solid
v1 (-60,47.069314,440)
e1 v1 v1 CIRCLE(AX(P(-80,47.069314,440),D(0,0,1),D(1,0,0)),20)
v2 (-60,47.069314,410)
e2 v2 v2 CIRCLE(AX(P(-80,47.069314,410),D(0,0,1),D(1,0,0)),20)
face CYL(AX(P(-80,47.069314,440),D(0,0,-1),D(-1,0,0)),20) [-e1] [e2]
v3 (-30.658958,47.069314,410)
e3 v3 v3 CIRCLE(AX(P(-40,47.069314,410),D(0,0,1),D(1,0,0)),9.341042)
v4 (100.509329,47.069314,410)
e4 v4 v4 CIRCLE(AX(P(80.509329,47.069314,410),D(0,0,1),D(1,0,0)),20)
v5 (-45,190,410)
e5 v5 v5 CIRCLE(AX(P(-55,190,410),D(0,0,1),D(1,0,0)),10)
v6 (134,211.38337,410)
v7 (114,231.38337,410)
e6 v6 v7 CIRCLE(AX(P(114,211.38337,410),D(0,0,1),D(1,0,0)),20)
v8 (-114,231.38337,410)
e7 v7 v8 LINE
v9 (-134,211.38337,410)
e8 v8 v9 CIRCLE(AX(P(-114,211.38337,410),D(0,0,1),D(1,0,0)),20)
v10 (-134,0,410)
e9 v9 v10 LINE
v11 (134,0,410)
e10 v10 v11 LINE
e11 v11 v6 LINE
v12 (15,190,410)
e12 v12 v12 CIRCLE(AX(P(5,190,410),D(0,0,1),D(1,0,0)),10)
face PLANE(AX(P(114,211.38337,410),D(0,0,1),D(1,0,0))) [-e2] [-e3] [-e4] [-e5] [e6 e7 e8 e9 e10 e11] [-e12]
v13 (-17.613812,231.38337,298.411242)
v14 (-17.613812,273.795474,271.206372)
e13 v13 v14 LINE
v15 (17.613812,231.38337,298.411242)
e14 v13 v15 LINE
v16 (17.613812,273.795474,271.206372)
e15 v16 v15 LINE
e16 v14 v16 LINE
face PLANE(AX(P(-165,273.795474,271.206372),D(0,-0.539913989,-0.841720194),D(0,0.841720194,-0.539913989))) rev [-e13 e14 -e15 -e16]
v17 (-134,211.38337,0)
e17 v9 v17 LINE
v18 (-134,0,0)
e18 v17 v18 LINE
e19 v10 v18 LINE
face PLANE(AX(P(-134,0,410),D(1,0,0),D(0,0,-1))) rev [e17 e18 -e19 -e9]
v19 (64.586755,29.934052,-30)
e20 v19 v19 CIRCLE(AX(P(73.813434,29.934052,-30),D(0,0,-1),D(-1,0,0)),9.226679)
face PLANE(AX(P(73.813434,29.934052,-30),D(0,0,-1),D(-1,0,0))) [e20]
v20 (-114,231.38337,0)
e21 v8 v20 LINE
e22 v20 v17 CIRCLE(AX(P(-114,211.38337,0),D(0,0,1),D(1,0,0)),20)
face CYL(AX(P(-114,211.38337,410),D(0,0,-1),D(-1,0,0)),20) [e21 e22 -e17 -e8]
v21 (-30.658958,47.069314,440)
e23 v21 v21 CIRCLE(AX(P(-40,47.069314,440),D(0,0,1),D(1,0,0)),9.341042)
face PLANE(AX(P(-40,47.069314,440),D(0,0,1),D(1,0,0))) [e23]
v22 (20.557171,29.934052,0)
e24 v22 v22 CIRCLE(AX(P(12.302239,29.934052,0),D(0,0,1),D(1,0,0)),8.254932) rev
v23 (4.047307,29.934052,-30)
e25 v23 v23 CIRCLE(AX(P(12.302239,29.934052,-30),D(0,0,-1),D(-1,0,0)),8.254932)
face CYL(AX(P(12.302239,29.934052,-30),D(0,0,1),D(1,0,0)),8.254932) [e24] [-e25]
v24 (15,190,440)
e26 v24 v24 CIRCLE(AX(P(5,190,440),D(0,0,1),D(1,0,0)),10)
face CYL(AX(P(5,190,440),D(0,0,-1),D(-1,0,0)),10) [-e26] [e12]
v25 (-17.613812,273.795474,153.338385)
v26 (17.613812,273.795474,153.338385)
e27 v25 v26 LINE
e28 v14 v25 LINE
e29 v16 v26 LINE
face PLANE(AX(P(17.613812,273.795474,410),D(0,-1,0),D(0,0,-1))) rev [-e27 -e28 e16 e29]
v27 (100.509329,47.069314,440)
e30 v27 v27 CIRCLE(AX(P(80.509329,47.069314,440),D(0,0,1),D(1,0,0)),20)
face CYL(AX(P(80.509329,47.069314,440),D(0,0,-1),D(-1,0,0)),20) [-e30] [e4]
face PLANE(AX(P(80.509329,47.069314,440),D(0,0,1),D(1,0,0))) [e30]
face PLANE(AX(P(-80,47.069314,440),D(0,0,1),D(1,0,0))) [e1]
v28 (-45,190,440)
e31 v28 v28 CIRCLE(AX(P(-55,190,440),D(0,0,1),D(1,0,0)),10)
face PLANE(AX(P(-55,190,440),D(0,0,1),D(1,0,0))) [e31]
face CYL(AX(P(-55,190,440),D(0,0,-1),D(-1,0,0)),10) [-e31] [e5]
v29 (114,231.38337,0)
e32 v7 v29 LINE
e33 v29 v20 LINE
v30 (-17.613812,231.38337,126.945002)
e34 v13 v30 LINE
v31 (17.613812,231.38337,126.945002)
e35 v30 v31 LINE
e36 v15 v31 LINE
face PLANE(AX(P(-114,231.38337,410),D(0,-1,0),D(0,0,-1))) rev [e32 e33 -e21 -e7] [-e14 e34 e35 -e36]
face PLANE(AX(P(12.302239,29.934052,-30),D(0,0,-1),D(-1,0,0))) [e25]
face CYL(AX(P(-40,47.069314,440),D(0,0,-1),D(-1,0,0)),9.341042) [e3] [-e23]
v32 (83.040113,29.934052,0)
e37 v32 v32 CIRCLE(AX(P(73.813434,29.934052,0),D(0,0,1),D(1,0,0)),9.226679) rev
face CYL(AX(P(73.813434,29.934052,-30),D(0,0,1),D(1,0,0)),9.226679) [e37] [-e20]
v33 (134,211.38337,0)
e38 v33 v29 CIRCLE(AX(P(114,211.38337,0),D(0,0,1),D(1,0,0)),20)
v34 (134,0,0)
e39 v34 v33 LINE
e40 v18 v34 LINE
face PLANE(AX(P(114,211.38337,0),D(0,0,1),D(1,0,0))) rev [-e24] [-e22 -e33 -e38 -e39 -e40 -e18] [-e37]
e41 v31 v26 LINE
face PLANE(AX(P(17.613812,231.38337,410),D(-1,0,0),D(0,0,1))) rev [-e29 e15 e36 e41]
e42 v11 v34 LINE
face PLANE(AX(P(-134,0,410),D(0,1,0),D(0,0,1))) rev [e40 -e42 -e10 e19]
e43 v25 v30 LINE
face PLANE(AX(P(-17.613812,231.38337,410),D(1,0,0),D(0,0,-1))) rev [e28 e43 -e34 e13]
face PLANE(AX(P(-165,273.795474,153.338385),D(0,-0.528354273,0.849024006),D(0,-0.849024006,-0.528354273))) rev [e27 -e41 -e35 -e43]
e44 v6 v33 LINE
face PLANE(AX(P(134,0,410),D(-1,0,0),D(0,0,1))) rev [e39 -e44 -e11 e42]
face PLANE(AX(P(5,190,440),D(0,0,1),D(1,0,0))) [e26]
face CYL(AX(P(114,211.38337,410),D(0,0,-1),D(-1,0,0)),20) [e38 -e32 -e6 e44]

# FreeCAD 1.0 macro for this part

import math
import FreeCAD as App
import Part
import Sketcher


def add_polygon(sketch, points):
    """Adds a closed chain of lines whose ends are joined by coincident constraints."""
    first, n = sketch.GeometryCount, len(points)
    for a, b in zip(points, points[1:] + points[:1]):
        sketch.addGeometry(Part.LineSegment(App.Vector(*a, 0), App.Vector(*b, 0)), False)
    for i in range(n):
        sketch.addConstraint(Sketcher.Constraint("Coincident", first + i, 2, first + (i + 1) % n, 1))

doc = App.newDocument("Part")
body = doc.addObject("PartDesign::Body", "Body")

# Sketch on XY plane
sketch1 = body.newObject("Sketcher::SketchObject", "Sketch")
sketch1.AttachmentSupport = (doc.getObject("XY_Plane"), [""])
sketch1.MapMode = "FlatFace"
sketch1.addGeometry(Part.LineSegment(App.Vector(-134, 0, 0), App.Vector(134, 0, 0)), False)
sketch1.addGeometry(Part.LineSegment(App.Vector(134, 0, 0), App.Vector(134, 211.38337, 0)), False)
sketch1.addGeometry(Part.ArcOfCircle(Part.Circle(App.Vector(114, 211.38337, 0), App.Vector(0, 0, 1), 20), math.radians(0), math.radians(90)), False)
sketch1.addGeometry(Part.LineSegment(App.Vector(114, 231.38337, 0), App.Vector(17.613812, 231.38337, 0)), False)
sketch1.addGeometry(Part.LineSegment(App.Vector(17.613812, 231.38337, 0), App.Vector(17.613812, 273.795474, 0)), False)
sketch1.addGeometry(Part.LineSegment(App.Vector(17.613812, 273.795474, 0), App.Vector(-17.613812, 273.795474, 0)), False)
sketch1.addGeometry(Part.LineSegment(App.Vector(-17.613812, 273.795474, 0), App.Vector(-17.613812, 231.38337, 0)), False)
sketch1.addGeometry(Part.LineSegment(App.Vector(-17.613812, 231.38337, 0), App.Vector(-114, 231.38337, 0)), False)
sketch1.addGeometry(Part.ArcOfCircle(Part.Circle(App.Vector(-114, 211.38337, 0), App.Vector(0, 0, 1), 20), math.radians(90), math.radians(180)), False)
sketch1.addGeometry(Part.LineSegment(App.Vector(-134, 211.38337, 0), App.Vector(-134, 0, 0)), False)
sketch1.addConstraint(Sketcher.Constraint("Coincident", 0, 2, 1, 1))
sketch1.addConstraint(Sketcher.Constraint("Tangent", 1, 2, 2, 1))
sketch1.addConstraint(Sketcher.Constraint("Tangent", 2, 2, 3, 1))
sketch1.addConstraint(Sketcher.Constraint("Coincident", 3, 2, 4, 1))
sketch1.addConstraint(Sketcher.Constraint("Coincident", 4, 2, 5, 1))
sketch1.addConstraint(Sketcher.Constraint("Coincident", 5, 2, 6, 1))
sketch1.addConstraint(Sketcher.Constraint("Coincident", 6, 2, 7, 1))
sketch1.addConstraint(Sketcher.Constraint("Tangent", 7, 2, 8, 1))
sketch1.addConstraint(Sketcher.Constraint("Tangent", 8, 2, 9, 1))
sketch1.addConstraint(Sketcher.Constraint("Coincident", 9, 2, 0, 1))
sketch1.addConstraint(Sketcher.Constraint("Horizontal", 0))
sketch1.addConstraint(Sketcher.Constraint("Vertical", 1))
sketch1.addConstraint(Sketcher.Constraint("Horizontal", 3))
sketch1.addConstraint(Sketcher.Constraint("Vertical", 4))
sketch1.addConstraint(Sketcher.Constraint("Horizontal", 5))
sketch1.addConstraint(Sketcher.Constraint("Vertical", 6))
sketch1.addConstraint(Sketcher.Constraint("Horizontal", 7))
sketch1.addConstraint(Sketcher.Constraint("Vertical", 9))
sketch1.addConstraint(Sketcher.Constraint("Equal", 2, 8))
sketch1.addConstraint(Sketcher.Constraint("Symmetric", 0, 2, 9, 2, -1, 1))
sketch1.addConstraint(Sketcher.Constraint("Symmetric", 3, 2, 6, 2, -2))
sketch1.addConstraint(Sketcher.Constraint("Radius", 2, 20.0))
sketch1.addConstraint(Sketcher.Constraint("DistanceX", 0, 1, 0, 2, 268.0))
sketch1.addConstraint(Sketcher.Constraint("DistanceY", 1, 1, 1, 2, 211.38337))
sketch1.addConstraint(Sketcher.Constraint("DistanceX", 3, 2, 3, 1, 96.386188))
sketch1.addConstraint(Sketcher.Constraint("DistanceY", 4, 1, 4, 2, 42.412103))
pad1 = body.newObject("PartDesign::Pad", "Pad")
pad1.Profile = sketch1
pad1.Length = 410

# Sketch on YZ plane
sketch2 = body.newObject("Sketcher::SketchObject", "Sketch001")
sketch2.AttachmentSupport = (doc.getObject("YZ_Plane"), [""])
sketch2.MapMode = "FlatFace"
add_polygon(sketch2, [(231.38337, 298.411242), (273.795474, 271.206372), (273.795474, 153.338385), (231.38337, 126.945002), (231.38337, 0), (334.856446, 0), (334.856446, 410.493924), (231.38337, 410.493924)])  # lines 0-7
sketch2.addConstraint(Sketcher.Constraint("Vertical", 1))
sketch2.addConstraint(Sketcher.Constraint("Vertical", 3))
sketch2.addConstraint(Sketcher.Constraint("Horizontal", 4))
sketch2.addConstraint(Sketcher.Constraint("Vertical", 5))
sketch2.addConstraint(Sketcher.Constraint("Horizontal", 6))
sketch2.addConstraint(Sketcher.Constraint("Vertical", 7))
sketch2.addConstraint(Sketcher.Constraint("PointOnObject", 3, 2, -1))
sketch2.addConstraint(Sketcher.Constraint("Vertical", 3, 2, 6, 2))
sketch2.addConstraint(Sketcher.Constraint("DistanceY", 3, 2, 3, 1, 126.945002))
sketch2.addConstraint(Sketcher.Constraint("Distance", 2, 49.953951))
sketch2.addConstraint(Sketcher.Constraint("DistanceX", 4, 1, 4, 2, 103.473076))
sketch2.addConstraint(Sketcher.Constraint("DistanceY", 1, 2, 1, 1, 117.867987))
sketch2.addConstraint(Sketcher.Constraint("DistanceY", 5, 1, 5, 2, 410.493924))
sketch2.addConstraint(Sketcher.Constraint("DistanceY", 7, 2, 7, 1, 112.082682))
sketch2.addConstraint(Sketcher.Constraint("DistanceX", -1, 1, 2, 2, 231.38337))
sketch2.addConstraint(Sketcher.Constraint("DistanceY", 2, 2, 0, 2, 144.26137))
pocket1 = body.newObject("PartDesign::Pocket", "Pocket")
pocket1.Profile = sketch2
pocket1.Length = 330
pocket1.Midplane = True

# Sketch on XY plane
sketch3 = body.newObject("Sketcher::SketchObject", "Sketch002")
sketch3.AttachmentSupport = (doc.getObject("XY_Plane"), [""])
sketch3.MapMode = "FlatFace"
sketch3.AttachmentOffset = App.Placement(App.Vector(0, 0, 410), App.Rotation())
sketch3.addGeometry(Part.Circle(App.Vector(-80, 47.069314, 0), App.Vector(0, 0, 1), 20), False)
sketch3.addGeometry(Part.Circle(App.Vector(-40, 47.069314, 0), App.Vector(0, 0, 1), 9.341042), False)
sketch3.addGeometry(Part.Circle(App.Vector(80.509329, 47.069314, 0), App.Vector(0, 0, 1), 20), False)
sketch3.addGeometry(Part.Circle(App.Vector(-55, 190, 0), App.Vector(0, 0, 1), 10), False)
sketch3.addGeometry(Part.Circle(App.Vector(5, 190, 0), App.Vector(0, 0, 1), 10), False)
sketch3.addConstraint(Sketcher.Constraint("Equal", 0, 2))
sketch3.addConstraint(Sketcher.Constraint("Equal", 3, 4))
sketch3.addConstraint(Sketcher.Constraint("Horizontal", 0, 3, 1, 3))
sketch3.addConstraint(Sketcher.Constraint("Horizontal", 1, 3, 2, 3))
sketch3.addConstraint(Sketcher.Constraint("Horizontal", 3, 3, 4, 3))
sketch3.addConstraint(Sketcher.Constraint("Diameter", 0, 40.0))
sketch3.addConstraint(Sketcher.Constraint("Diameter", 3, 20.0))
sketch3.addConstraint(Sketcher.Constraint("DistanceX", 0, 3, -1, 1, 80.0))
sketch3.addConstraint(Sketcher.Constraint("DistanceX", 1, 3, -1, 1, 40.0))
sketch3.addConstraint(Sketcher.Constraint("DistanceX", 3, 3, -1, 1, 55.0))
sketch3.addConstraint(Sketcher.Constraint("DistanceY", -1, 1, 3, 3, 190.0))
sketch3.addConstraint(Sketcher.Constraint("DistanceX", -1, 1, 4, 3, 5.0))
sketch3.addConstraint(Sketcher.Constraint("Diameter", 1, 18.682085))
sketch3.addConstraint(Sketcher.Constraint("DistanceX", -1, 1, 2, 3, 80.509329))
sketch3.addConstraint(Sketcher.Constraint("DistanceY", -1, 1, 0, 3, 47.069314))
pad2 = body.newObject("PartDesign::Pad", "Pad001")
pad2.Profile = sketch3
pad2.Length = 30

# Sketch on XY plane
sketch4 = body.newObject("Sketcher::SketchObject", "Sketch003")
sketch4.AttachmentSupport = (doc.getObject("XY_Plane"), [""])
sketch4.MapMode = "FlatFace"
sketch4.addGeometry(Part.Circle(App.Vector(12.302239, 29.934052, 0), App.Vector(0, 0, 1), 8.254932), False)
sketch4.addGeometry(Part.Circle(App.Vector(73.813434, 29.934052, 0), App.Vector(0, 0, 1), 9.226679), False)
sketch4.addConstraint(Sketcher.Constraint("Horizontal", 0, 3, 1, 3))
sketch4.addConstraint(Sketcher.Constraint("Diameter", 1, 18.453358))
sketch4.addConstraint(Sketcher.Constraint("Diameter", 0, 16.509863))
sketch4.addConstraint(Sketcher.Constraint("DistanceX", -1, 1, 0, 3, 12.302239))
sketch4.addConstraint(Sketcher.Constraint("DistanceY", -1, 1, 0, 3, 29.934052))
sketch4.addConstraint(Sketcher.Constraint("DistanceX", -1, 1, 1, 3, 73.813434))
pad3 = body.newObject("PartDesign::Pad", "Pad002")
pad3.Profile = sketch4
pad3.Length = 30
pad3.Reversed = True

doc.recompute()
